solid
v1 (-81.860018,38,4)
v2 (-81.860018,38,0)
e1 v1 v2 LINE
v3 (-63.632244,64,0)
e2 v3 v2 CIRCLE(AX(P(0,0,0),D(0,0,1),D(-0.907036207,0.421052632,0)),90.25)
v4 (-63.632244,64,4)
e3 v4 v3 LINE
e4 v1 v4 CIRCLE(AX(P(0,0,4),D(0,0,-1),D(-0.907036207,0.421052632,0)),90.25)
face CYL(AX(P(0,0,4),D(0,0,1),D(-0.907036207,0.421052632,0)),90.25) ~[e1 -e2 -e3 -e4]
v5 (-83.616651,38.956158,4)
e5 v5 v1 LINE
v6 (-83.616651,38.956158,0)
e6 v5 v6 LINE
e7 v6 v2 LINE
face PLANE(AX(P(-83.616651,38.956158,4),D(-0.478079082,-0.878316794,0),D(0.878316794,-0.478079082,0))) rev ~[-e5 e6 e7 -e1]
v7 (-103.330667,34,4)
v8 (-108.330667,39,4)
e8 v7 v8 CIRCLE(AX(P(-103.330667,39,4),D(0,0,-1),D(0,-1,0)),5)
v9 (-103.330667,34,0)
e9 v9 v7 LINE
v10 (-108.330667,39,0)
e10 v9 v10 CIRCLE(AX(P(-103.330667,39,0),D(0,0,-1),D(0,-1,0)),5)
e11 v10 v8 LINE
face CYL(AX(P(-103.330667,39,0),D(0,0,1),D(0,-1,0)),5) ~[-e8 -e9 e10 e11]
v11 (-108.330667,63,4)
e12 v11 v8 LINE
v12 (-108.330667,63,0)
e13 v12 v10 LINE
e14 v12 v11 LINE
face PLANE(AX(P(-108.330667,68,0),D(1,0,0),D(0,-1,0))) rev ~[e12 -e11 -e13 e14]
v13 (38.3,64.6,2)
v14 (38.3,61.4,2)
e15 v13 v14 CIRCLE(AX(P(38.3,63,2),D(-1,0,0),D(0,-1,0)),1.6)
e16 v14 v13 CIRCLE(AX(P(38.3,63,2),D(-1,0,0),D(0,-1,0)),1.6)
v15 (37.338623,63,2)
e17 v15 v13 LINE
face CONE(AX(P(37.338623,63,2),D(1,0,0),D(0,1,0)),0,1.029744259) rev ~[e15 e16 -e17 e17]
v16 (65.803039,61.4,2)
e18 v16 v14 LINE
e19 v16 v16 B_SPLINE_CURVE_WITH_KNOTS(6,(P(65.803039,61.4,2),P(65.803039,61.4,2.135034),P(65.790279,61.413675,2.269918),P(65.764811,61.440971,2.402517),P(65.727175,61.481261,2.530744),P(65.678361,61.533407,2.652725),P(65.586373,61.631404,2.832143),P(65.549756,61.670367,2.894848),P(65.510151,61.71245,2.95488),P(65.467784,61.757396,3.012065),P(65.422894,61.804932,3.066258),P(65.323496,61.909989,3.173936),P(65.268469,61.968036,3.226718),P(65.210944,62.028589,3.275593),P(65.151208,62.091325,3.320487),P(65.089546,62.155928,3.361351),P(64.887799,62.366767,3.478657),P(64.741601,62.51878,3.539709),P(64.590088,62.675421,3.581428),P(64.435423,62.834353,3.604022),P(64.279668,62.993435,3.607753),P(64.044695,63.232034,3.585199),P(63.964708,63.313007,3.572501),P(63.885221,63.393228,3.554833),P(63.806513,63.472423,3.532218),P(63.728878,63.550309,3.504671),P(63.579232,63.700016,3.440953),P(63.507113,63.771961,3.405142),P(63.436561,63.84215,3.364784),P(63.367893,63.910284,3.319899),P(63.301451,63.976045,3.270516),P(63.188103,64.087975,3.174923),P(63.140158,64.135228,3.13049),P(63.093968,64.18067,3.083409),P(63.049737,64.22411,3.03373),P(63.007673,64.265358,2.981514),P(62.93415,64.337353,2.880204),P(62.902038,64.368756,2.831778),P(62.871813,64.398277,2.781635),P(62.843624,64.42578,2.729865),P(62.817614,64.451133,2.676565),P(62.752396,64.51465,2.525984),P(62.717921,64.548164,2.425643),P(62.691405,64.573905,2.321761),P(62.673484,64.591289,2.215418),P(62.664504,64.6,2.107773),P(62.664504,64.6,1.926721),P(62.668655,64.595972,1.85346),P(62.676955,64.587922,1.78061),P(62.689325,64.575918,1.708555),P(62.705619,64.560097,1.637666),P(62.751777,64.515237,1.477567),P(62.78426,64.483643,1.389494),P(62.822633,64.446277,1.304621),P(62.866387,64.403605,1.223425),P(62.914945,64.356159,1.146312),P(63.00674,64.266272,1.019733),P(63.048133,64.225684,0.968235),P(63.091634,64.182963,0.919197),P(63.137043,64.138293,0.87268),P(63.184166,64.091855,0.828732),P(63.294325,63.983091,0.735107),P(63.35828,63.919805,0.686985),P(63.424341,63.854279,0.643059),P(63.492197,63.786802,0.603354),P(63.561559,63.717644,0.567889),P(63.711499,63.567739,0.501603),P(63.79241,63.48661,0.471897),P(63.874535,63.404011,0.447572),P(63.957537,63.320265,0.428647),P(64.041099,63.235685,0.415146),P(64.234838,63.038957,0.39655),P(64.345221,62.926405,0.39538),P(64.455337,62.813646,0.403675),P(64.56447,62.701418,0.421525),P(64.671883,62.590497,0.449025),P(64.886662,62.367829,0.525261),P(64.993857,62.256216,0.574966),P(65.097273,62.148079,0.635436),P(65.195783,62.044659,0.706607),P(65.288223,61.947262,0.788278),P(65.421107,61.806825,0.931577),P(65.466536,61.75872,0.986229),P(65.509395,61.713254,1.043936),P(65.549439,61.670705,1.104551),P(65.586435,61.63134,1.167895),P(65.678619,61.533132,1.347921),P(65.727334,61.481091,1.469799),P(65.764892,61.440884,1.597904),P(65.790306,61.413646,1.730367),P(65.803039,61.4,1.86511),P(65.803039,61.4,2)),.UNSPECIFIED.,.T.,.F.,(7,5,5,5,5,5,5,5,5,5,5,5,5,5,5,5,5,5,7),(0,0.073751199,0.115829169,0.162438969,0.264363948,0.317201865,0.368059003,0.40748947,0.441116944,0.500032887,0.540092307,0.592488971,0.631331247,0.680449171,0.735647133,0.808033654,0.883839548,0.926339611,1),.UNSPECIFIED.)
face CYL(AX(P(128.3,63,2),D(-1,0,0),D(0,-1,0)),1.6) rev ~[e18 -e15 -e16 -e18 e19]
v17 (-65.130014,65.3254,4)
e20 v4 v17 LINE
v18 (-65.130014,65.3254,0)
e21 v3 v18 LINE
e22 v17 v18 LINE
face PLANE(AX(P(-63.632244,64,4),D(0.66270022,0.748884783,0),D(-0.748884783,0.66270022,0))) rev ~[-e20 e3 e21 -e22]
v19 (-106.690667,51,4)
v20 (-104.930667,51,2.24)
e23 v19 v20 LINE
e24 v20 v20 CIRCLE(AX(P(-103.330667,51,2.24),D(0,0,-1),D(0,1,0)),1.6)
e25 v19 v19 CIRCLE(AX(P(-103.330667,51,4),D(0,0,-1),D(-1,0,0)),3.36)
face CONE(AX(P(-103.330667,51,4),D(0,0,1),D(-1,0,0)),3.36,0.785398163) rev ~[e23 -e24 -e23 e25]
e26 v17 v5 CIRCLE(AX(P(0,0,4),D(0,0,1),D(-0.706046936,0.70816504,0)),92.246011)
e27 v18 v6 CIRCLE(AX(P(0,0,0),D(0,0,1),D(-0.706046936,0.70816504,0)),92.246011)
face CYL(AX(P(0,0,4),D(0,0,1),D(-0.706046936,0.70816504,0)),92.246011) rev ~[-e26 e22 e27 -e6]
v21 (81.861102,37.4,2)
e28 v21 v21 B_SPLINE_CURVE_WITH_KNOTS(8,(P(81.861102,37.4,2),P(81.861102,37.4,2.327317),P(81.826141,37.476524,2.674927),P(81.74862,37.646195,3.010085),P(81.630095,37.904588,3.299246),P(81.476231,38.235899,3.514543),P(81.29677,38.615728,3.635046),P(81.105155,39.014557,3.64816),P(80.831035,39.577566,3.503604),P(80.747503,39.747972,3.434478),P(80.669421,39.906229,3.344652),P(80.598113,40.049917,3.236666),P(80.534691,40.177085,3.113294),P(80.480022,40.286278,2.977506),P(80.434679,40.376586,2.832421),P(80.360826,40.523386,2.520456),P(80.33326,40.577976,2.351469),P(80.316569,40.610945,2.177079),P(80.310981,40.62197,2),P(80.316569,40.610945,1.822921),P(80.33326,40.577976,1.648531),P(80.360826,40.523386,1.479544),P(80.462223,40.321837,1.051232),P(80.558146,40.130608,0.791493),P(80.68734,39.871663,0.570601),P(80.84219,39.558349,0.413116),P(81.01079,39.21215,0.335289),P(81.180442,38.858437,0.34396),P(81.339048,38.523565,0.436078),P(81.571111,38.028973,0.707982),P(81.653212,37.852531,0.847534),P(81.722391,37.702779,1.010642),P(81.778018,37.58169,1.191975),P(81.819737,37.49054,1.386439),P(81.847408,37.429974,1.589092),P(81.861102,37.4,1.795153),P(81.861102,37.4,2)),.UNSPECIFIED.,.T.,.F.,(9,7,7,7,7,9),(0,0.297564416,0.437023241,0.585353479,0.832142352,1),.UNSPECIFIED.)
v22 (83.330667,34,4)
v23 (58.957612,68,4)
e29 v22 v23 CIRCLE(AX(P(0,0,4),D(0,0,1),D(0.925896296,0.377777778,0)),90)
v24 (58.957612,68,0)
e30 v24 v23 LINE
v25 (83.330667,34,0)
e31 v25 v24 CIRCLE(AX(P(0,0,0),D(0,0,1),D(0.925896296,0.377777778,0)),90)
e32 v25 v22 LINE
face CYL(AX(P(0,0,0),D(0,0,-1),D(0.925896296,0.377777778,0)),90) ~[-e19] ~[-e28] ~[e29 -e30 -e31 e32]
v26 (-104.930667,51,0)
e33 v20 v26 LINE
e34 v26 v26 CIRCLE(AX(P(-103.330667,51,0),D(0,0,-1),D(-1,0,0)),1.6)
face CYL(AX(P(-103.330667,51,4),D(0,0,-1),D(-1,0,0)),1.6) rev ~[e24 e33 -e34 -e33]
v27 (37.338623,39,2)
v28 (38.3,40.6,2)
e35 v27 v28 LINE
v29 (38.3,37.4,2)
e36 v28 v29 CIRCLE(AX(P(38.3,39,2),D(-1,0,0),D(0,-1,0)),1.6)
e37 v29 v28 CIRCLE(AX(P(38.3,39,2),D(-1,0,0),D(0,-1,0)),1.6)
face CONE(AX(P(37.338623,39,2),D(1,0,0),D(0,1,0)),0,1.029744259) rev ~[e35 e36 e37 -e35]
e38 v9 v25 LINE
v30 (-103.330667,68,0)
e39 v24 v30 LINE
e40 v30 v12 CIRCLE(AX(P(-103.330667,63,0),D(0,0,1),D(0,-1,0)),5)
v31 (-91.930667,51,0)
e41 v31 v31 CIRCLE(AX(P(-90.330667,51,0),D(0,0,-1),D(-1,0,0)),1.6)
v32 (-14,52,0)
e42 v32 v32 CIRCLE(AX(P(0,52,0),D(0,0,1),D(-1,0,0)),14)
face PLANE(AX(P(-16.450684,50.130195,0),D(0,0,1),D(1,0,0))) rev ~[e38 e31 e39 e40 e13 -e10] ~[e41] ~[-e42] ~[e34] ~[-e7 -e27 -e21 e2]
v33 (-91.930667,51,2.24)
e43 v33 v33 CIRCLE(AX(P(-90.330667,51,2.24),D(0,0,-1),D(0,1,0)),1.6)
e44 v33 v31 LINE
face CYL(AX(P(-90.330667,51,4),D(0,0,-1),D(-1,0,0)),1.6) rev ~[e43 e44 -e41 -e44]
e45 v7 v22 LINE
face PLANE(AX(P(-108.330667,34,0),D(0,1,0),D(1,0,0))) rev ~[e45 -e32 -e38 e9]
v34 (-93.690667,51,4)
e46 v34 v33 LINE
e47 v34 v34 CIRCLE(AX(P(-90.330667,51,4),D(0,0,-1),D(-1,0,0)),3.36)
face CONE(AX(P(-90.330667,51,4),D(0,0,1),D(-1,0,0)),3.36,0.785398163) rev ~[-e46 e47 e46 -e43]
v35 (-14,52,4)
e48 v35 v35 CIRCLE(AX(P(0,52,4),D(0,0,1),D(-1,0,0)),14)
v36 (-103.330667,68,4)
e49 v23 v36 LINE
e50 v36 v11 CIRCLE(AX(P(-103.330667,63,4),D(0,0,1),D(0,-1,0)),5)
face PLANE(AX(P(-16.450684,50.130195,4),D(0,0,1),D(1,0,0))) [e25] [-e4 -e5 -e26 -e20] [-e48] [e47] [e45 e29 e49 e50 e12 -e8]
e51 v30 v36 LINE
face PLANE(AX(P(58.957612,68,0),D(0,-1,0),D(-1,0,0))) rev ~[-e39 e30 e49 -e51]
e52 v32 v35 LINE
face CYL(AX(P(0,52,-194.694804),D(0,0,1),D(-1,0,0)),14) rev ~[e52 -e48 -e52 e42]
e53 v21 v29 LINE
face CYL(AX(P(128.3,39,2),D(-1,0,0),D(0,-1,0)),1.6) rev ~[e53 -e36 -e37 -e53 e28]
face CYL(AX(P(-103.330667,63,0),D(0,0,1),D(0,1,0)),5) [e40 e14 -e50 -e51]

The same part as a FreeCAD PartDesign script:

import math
import FreeCAD as App
import Part
import Sketcher

V = App.Vector
Q = App.Units.Quantity


def edges_at(feature, points):
    """Names of the edges that pass closest to the given points."""
    edges = feature.Shape.Edges
    near = lambda p: min(range(len(edges)), key=lambda i: edges[i].distToShape(Part.Vertex(*p))[0])
    return sorted({f"Edge{near(p) + 1}" for p in points})

doc = App.newDocument("Part")
params = doc.addObject("Spreadsheet::Sheet", "Params")
for row, (alias, value) in enumerate([
    ("sketch1_radius", "90 mm"),
    ("sketch1_height", "34 mm"),
    ("pad1_length", "4 mm"),
    ("sketch2_radius", "90 mm"),
    ("sketch2_height", "34 mm"),
    ("pad2_length", "4 mm"),
    ("sketch3_diameter", "3.2 mm"),
    ("hole_diameter", "3.2 mm"),
    ("hole_depth", "45 mm"),
    ("sketch4_diameter", "28 mm"),
    ("hole2_diameter", "28 mm"),
    ("sketch5_diameter", "3.2 mm"),
    ("hole3_diameter", "3.2 mm"),
    ("hole3_depth", "60 mm"),
    ("hole3_csink_diameter", "6.72 mm"),
    ("sketch6_radius", "90.25 mm"),
    ("sketch6_length", "2 mm"),
    ("fillet_radius", "5 mm"),
], start=1):
    params.set(f"A{row}", alias)
    params.set(f"B{row}", "=" + value)
    params.setAlias(f"B{row}", alias)

body = doc.addObject("PartDesign::Body", "Body")

# Sketch on XY plane
sketch1 = body.newObject("Sketcher::SketchObject", "Sketch")
sketch1.AttachmentSupport = (doc.getObject("XY_Plane"), [""])
sketch1.MapMode = "FlatFace"
sketch1.addGeometry([
    Part.ArcOfCircle(Part.Circle(V(0, 0, 0), V(0, 0, 1), 90), math.radians(22), math.radians(49)),
    Part.LineSegment(V(59, 68, 0), V(-108, 68, 0)),
    Part.LineSegment(V(-108, 68, 0), V(-108, 34, 0)),
    Part.LineSegment(V(-108, 34, 0), V(83, 34, 0)),
], False)
sketch1.addConstraint([
    Sketcher.Constraint("Coincident", 0, 2, 1, 1),
    Sketcher.Constraint("Coincident", 1, 2, 2, 1),
    Sketcher.Constraint("Coincident", 2, 2, 3, 1),
    Sketcher.Constraint("Coincident", 3, 2, 0, 1),
    Sketcher.Constraint("Horizontal", 1),
    Sketcher.Constraint("Vertical", 2),
    Sketcher.Constraint("Horizontal", 3),
    Sketcher.Constraint("Coincident", 0, 3, -1, 1),
    Sketcher.Constraint("Radius", 0, 90.0),
    Sketcher.Constraint("DistanceY", 2, 2, 2, 1, 34.0),
    Sketcher.Constraint("DistanceY", -1, 1, 0, 2, 68.0),
    Sketcher.Constraint("DistanceX", 1, 2, 1, 1, 167.288279),
])
sketch1.setExpression("Constraints[8]", "Params.sketch1_radius")
sketch1.setExpression("Constraints[9]", "Params.sketch1_height")
pad1 = body.newObject("PartDesign::Pad", "Pad")
pad1.Profile = sketch1
pad1.setExpression("Length", "Params.pad1_length")

# Sketch on XY plane
sketch2 = body.newObject("Sketcher::SketchObject", "Sketch001")
sketch2.AttachmentSupport = (doc.getObject("XY_Plane"), [""])
sketch2.MapMode = "FlatFace"
sketch2.addGeometry([
    Part.ArcOfCircle(Part.Circle(V(0, 0, 0), V(0, 0, 1), 90), math.radians(22), math.radians(49)),
    Part.LineSegment(V(59, 68, 0), V(-108, 68, 0)),
    Part.LineSegment(V(-108, 68, 0), V(-108, 34, 0)),
    Part.LineSegment(V(-108, 34, 0), V(83, 34, 0)),
], False)
sketch2.addConstraint([
    Sketcher.Constraint("Coincident", 0, 2, 1, 1),
    Sketcher.Constraint("Coincident", 1, 2, 2, 1),
    Sketcher.Constraint("Coincident", 2, 2, 3, 1),
    Sketcher.Constraint("Coincident", 3, 2, 0, 1),
    Sketcher.Constraint("Horizontal", 1),
    Sketcher.Constraint("Vertical", 2),
    Sketcher.Constraint("Horizontal", 3),
    Sketcher.Constraint("Coincident", 0, 3, -1, 1),
    Sketcher.Constraint("Radius", 0, 90.0),
    Sketcher.Constraint("DistanceY", 2, 2, 2, 1, 34.0),
    Sketcher.Constraint("DistanceY", -1, 1, 0, 2, 68.0),
    Sketcher.Constraint("DistanceX", 1, 2, 1, 1, 167.288279),
])
sketch2.setExpression("Constraints[8]", "Params.sketch2_radius")
sketch2.setExpression("Constraints[9]", "Params.sketch2_height")
pad2 = body.newObject("PartDesign::Pad", "Pad001")
pad2.Profile = sketch2
pad2.setExpression("Length", "Params.pad2_length")

# Sketch on YZ plane
sketch3 = body.newObject("Sketcher::SketchObject", "Sketch002")
sketch3.AttachmentSupport = (doc.getObject("YZ_Plane"), [""])
sketch3.MapMode = "FlatFace"
sketch3.AttachmentOffset = App.Placement(V(0, 0, 83.3), App.Rotation())
sketch3.addGeometry([
    Part.Circle(V(63, 2, 0), V(0, 0, 1), 1.6),
    Part.Circle(V(39, 2, 0), V(0, 0, 1), 1.6),
], False)
sketch3.addConstraint([
    Sketcher.Constraint("Equal", 0, 1),
    Sketcher.Constraint("Horizontal", 0, 3, 1, 3),
    Sketcher.Constraint("Diameter", 0, 3.2),
    Sketcher.Constraint("DistanceX", -1, 1, 0, 3, 63.0),
    Sketcher.Constraint("DistanceY", -1, 1, 0, 3, 2.0),
    Sketcher.Constraint("DistanceX", -1, 1, 1, 3, 39.0),
])
sketch3.setExpression("Constraints[2]", "Params.sketch3_diameter")
doc.recompute()
hole = body.newObject("PartDesign::Hole", "Hole")
hole.Profile = sketch3
hole.ThreadType = "None"
hole.setExpression("Diameter", "Params.hole_diameter")
hole.DepthType = "Dimension"
hole.setExpression("Depth", "Params.hole_depth")
hole.DrillPoint = "Angled"
hole.DrillPointAngle = 118

# Sketch on XY plane
sketch4 = body.newObject("Sketcher::SketchObject", "Sketch003")
sketch4.AttachmentSupport = (doc.getObject("XY_Plane"), [""])
sketch4.MapMode = "FlatFace"
sketch4.addGeometry(Part.Circle(V(0, 52, 0), V(0, 0, 1), 14), False)
sketch4.addConstraint([
    Sketcher.Constraint("PointOnObject", 0, 3, -2),
    Sketcher.Constraint("Diameter", 0, 28.0),
    Sketcher.Constraint("DistanceY", -1, 1, 0, 3, 52.0),
])
sketch4.setExpression("Constraints[1]", "Params.sketch4_diameter")
doc.recompute()
hole2 = body.newObject("PartDesign::Hole", "Hole001")
hole2.Profile = sketch4
hole2.ThreadType = "None"
hole2.setExpression("Diameter", "Params.hole2_diameter")
hole2.DepthType = "ThroughAll"
hole2.Reversed = True

# Sketch on XY plane
sketch5 = body.newObject("Sketcher::SketchObject", "Sketch004")
sketch5.AttachmentSupport = (doc.getObject("XY_Plane"), [""])
sketch5.MapMode = "FlatFace"
sketch5.AttachmentOffset = App.Placement(V(0, 0, 4), App.Rotation())
sketch5.addGeometry([
    Part.Circle(V(-103.3, 51, 0), V(0, 0, 1), 1.6),
    Part.Circle(V(-90.3, 51, 0), V(0, 0, 1), 1.6),
], False)
sketch5.addConstraint([
    Sketcher.Constraint("Equal", 0, 1),
    Sketcher.Constraint("Horizontal", 0, 3, 1, 3),
    Sketcher.Constraint("Diameter", 0, 3.2),
    Sketcher.Constraint("DistanceY", -1, 1, 0, 3, 51.0),
    Sketcher.Constraint("DistanceX", 0, 3, 1, 3, 13.0),
    Sketcher.Constraint("DistanceX", 0, 3, -1, 1, 103.330667),
])
sketch5.setExpression("Constraints[2]", "Params.sketch5_diameter")
doc.recompute()
hole3 = body.newObject("PartDesign::Hole", "Hole002")
hole3.Profile = sketch5
hole3.ThreadType = "None"
hole3.setExpression("Diameter", "Params.hole3_diameter")
hole3.DepthType = "Dimension"
hole3.setExpression("Depth", "Params.hole3_depth")
hole3.DrillPoint = "Angled"
hole3.DrillPointAngle = 118
hole3.HoleCutType = "Countersink"
hole3.setExpression("HoleCutDiameter", "Params.hole3_csink_diameter")
hole3.HoleCutCountersinkAngle = 90

# Sketch on XY plane
sketch6 = body.newObject("Sketcher::SketchObject", "Sketch005")
sketch6.AttachmentSupport = (doc.getObject("XY_Plane"), [""])
sketch6.MapMode = "FlatFace"
sketch6.AttachmentOffset = App.Placement(V(0, 0, 4), App.Rotation())
sketch6.addGeometry([
    Part.ArcOfCircle(Part.Circle(V(0, 0, 0), V(0, 0, 1), 90.2), math.radians(135), math.radians(155)),
    Part.LineSegment(V(-63.6, 64, 0), V(-65.1, 65.3, 0)),
    Part.ArcOfCircle(Part.Circle(V(0, 0, 0), V(0, 0, 1), 92.2), math.radians(135), math.radians(155)),
    Part.LineSegment(V(-83.6, 39, 0), V(-81.9, 38, 0)),
], False)
sketch6.addConstraint([
    Sketcher.Constraint("Coincident", 0, 1, 1, 1),
    Sketcher.Constraint("Coincident", 1, 2, 2, 1),
    Sketcher.Constraint("Coincident", 2, 2, 3, 1),
    Sketcher.Constraint("Coincident", 3, 2, 0, 2),
    Sketcher.Constraint("Coincident", 0, 3, -1, 1),
    Sketcher.Constraint("Coincident", 2, 3, -1, 1),
    Sketcher.Constraint("Equal", 1, 3),
    Sketcher.Constraint("Radius", 0, 90.25),
    Sketcher.Constraint("Distance", 1, 2.0),
    Sketcher.Constraint("DistanceY", -1, 1, 0, 1, 64.0),
    Sketcher.Constraint("DistanceY", -1, 1, 3, 2, 38.0),
    Sketcher.Constraint("Angle", 3, Q("-28.560019 deg")),
])
sketch6.setExpression("Constraints[7]", "Params.sketch6_radius")
sketch6.setExpression("Constraints[8]", "Params.sketch6_length")
pocket1 = body.newObject("PartDesign::Pocket", "Pocket")
pocket1.Profile = sketch6
pocket1.Type = "ThroughAll"
doc.recompute()

fillet = body.newObject("PartDesign::Fillet", "Fillet")
fillet.Base = (pocket1, edges_at(pocket1, [(-108.331, 34, 2), (-108.331, 68, 2)]))
fillet.setExpression("Radius", "Params.fillet_radius")

doc.recompute()
